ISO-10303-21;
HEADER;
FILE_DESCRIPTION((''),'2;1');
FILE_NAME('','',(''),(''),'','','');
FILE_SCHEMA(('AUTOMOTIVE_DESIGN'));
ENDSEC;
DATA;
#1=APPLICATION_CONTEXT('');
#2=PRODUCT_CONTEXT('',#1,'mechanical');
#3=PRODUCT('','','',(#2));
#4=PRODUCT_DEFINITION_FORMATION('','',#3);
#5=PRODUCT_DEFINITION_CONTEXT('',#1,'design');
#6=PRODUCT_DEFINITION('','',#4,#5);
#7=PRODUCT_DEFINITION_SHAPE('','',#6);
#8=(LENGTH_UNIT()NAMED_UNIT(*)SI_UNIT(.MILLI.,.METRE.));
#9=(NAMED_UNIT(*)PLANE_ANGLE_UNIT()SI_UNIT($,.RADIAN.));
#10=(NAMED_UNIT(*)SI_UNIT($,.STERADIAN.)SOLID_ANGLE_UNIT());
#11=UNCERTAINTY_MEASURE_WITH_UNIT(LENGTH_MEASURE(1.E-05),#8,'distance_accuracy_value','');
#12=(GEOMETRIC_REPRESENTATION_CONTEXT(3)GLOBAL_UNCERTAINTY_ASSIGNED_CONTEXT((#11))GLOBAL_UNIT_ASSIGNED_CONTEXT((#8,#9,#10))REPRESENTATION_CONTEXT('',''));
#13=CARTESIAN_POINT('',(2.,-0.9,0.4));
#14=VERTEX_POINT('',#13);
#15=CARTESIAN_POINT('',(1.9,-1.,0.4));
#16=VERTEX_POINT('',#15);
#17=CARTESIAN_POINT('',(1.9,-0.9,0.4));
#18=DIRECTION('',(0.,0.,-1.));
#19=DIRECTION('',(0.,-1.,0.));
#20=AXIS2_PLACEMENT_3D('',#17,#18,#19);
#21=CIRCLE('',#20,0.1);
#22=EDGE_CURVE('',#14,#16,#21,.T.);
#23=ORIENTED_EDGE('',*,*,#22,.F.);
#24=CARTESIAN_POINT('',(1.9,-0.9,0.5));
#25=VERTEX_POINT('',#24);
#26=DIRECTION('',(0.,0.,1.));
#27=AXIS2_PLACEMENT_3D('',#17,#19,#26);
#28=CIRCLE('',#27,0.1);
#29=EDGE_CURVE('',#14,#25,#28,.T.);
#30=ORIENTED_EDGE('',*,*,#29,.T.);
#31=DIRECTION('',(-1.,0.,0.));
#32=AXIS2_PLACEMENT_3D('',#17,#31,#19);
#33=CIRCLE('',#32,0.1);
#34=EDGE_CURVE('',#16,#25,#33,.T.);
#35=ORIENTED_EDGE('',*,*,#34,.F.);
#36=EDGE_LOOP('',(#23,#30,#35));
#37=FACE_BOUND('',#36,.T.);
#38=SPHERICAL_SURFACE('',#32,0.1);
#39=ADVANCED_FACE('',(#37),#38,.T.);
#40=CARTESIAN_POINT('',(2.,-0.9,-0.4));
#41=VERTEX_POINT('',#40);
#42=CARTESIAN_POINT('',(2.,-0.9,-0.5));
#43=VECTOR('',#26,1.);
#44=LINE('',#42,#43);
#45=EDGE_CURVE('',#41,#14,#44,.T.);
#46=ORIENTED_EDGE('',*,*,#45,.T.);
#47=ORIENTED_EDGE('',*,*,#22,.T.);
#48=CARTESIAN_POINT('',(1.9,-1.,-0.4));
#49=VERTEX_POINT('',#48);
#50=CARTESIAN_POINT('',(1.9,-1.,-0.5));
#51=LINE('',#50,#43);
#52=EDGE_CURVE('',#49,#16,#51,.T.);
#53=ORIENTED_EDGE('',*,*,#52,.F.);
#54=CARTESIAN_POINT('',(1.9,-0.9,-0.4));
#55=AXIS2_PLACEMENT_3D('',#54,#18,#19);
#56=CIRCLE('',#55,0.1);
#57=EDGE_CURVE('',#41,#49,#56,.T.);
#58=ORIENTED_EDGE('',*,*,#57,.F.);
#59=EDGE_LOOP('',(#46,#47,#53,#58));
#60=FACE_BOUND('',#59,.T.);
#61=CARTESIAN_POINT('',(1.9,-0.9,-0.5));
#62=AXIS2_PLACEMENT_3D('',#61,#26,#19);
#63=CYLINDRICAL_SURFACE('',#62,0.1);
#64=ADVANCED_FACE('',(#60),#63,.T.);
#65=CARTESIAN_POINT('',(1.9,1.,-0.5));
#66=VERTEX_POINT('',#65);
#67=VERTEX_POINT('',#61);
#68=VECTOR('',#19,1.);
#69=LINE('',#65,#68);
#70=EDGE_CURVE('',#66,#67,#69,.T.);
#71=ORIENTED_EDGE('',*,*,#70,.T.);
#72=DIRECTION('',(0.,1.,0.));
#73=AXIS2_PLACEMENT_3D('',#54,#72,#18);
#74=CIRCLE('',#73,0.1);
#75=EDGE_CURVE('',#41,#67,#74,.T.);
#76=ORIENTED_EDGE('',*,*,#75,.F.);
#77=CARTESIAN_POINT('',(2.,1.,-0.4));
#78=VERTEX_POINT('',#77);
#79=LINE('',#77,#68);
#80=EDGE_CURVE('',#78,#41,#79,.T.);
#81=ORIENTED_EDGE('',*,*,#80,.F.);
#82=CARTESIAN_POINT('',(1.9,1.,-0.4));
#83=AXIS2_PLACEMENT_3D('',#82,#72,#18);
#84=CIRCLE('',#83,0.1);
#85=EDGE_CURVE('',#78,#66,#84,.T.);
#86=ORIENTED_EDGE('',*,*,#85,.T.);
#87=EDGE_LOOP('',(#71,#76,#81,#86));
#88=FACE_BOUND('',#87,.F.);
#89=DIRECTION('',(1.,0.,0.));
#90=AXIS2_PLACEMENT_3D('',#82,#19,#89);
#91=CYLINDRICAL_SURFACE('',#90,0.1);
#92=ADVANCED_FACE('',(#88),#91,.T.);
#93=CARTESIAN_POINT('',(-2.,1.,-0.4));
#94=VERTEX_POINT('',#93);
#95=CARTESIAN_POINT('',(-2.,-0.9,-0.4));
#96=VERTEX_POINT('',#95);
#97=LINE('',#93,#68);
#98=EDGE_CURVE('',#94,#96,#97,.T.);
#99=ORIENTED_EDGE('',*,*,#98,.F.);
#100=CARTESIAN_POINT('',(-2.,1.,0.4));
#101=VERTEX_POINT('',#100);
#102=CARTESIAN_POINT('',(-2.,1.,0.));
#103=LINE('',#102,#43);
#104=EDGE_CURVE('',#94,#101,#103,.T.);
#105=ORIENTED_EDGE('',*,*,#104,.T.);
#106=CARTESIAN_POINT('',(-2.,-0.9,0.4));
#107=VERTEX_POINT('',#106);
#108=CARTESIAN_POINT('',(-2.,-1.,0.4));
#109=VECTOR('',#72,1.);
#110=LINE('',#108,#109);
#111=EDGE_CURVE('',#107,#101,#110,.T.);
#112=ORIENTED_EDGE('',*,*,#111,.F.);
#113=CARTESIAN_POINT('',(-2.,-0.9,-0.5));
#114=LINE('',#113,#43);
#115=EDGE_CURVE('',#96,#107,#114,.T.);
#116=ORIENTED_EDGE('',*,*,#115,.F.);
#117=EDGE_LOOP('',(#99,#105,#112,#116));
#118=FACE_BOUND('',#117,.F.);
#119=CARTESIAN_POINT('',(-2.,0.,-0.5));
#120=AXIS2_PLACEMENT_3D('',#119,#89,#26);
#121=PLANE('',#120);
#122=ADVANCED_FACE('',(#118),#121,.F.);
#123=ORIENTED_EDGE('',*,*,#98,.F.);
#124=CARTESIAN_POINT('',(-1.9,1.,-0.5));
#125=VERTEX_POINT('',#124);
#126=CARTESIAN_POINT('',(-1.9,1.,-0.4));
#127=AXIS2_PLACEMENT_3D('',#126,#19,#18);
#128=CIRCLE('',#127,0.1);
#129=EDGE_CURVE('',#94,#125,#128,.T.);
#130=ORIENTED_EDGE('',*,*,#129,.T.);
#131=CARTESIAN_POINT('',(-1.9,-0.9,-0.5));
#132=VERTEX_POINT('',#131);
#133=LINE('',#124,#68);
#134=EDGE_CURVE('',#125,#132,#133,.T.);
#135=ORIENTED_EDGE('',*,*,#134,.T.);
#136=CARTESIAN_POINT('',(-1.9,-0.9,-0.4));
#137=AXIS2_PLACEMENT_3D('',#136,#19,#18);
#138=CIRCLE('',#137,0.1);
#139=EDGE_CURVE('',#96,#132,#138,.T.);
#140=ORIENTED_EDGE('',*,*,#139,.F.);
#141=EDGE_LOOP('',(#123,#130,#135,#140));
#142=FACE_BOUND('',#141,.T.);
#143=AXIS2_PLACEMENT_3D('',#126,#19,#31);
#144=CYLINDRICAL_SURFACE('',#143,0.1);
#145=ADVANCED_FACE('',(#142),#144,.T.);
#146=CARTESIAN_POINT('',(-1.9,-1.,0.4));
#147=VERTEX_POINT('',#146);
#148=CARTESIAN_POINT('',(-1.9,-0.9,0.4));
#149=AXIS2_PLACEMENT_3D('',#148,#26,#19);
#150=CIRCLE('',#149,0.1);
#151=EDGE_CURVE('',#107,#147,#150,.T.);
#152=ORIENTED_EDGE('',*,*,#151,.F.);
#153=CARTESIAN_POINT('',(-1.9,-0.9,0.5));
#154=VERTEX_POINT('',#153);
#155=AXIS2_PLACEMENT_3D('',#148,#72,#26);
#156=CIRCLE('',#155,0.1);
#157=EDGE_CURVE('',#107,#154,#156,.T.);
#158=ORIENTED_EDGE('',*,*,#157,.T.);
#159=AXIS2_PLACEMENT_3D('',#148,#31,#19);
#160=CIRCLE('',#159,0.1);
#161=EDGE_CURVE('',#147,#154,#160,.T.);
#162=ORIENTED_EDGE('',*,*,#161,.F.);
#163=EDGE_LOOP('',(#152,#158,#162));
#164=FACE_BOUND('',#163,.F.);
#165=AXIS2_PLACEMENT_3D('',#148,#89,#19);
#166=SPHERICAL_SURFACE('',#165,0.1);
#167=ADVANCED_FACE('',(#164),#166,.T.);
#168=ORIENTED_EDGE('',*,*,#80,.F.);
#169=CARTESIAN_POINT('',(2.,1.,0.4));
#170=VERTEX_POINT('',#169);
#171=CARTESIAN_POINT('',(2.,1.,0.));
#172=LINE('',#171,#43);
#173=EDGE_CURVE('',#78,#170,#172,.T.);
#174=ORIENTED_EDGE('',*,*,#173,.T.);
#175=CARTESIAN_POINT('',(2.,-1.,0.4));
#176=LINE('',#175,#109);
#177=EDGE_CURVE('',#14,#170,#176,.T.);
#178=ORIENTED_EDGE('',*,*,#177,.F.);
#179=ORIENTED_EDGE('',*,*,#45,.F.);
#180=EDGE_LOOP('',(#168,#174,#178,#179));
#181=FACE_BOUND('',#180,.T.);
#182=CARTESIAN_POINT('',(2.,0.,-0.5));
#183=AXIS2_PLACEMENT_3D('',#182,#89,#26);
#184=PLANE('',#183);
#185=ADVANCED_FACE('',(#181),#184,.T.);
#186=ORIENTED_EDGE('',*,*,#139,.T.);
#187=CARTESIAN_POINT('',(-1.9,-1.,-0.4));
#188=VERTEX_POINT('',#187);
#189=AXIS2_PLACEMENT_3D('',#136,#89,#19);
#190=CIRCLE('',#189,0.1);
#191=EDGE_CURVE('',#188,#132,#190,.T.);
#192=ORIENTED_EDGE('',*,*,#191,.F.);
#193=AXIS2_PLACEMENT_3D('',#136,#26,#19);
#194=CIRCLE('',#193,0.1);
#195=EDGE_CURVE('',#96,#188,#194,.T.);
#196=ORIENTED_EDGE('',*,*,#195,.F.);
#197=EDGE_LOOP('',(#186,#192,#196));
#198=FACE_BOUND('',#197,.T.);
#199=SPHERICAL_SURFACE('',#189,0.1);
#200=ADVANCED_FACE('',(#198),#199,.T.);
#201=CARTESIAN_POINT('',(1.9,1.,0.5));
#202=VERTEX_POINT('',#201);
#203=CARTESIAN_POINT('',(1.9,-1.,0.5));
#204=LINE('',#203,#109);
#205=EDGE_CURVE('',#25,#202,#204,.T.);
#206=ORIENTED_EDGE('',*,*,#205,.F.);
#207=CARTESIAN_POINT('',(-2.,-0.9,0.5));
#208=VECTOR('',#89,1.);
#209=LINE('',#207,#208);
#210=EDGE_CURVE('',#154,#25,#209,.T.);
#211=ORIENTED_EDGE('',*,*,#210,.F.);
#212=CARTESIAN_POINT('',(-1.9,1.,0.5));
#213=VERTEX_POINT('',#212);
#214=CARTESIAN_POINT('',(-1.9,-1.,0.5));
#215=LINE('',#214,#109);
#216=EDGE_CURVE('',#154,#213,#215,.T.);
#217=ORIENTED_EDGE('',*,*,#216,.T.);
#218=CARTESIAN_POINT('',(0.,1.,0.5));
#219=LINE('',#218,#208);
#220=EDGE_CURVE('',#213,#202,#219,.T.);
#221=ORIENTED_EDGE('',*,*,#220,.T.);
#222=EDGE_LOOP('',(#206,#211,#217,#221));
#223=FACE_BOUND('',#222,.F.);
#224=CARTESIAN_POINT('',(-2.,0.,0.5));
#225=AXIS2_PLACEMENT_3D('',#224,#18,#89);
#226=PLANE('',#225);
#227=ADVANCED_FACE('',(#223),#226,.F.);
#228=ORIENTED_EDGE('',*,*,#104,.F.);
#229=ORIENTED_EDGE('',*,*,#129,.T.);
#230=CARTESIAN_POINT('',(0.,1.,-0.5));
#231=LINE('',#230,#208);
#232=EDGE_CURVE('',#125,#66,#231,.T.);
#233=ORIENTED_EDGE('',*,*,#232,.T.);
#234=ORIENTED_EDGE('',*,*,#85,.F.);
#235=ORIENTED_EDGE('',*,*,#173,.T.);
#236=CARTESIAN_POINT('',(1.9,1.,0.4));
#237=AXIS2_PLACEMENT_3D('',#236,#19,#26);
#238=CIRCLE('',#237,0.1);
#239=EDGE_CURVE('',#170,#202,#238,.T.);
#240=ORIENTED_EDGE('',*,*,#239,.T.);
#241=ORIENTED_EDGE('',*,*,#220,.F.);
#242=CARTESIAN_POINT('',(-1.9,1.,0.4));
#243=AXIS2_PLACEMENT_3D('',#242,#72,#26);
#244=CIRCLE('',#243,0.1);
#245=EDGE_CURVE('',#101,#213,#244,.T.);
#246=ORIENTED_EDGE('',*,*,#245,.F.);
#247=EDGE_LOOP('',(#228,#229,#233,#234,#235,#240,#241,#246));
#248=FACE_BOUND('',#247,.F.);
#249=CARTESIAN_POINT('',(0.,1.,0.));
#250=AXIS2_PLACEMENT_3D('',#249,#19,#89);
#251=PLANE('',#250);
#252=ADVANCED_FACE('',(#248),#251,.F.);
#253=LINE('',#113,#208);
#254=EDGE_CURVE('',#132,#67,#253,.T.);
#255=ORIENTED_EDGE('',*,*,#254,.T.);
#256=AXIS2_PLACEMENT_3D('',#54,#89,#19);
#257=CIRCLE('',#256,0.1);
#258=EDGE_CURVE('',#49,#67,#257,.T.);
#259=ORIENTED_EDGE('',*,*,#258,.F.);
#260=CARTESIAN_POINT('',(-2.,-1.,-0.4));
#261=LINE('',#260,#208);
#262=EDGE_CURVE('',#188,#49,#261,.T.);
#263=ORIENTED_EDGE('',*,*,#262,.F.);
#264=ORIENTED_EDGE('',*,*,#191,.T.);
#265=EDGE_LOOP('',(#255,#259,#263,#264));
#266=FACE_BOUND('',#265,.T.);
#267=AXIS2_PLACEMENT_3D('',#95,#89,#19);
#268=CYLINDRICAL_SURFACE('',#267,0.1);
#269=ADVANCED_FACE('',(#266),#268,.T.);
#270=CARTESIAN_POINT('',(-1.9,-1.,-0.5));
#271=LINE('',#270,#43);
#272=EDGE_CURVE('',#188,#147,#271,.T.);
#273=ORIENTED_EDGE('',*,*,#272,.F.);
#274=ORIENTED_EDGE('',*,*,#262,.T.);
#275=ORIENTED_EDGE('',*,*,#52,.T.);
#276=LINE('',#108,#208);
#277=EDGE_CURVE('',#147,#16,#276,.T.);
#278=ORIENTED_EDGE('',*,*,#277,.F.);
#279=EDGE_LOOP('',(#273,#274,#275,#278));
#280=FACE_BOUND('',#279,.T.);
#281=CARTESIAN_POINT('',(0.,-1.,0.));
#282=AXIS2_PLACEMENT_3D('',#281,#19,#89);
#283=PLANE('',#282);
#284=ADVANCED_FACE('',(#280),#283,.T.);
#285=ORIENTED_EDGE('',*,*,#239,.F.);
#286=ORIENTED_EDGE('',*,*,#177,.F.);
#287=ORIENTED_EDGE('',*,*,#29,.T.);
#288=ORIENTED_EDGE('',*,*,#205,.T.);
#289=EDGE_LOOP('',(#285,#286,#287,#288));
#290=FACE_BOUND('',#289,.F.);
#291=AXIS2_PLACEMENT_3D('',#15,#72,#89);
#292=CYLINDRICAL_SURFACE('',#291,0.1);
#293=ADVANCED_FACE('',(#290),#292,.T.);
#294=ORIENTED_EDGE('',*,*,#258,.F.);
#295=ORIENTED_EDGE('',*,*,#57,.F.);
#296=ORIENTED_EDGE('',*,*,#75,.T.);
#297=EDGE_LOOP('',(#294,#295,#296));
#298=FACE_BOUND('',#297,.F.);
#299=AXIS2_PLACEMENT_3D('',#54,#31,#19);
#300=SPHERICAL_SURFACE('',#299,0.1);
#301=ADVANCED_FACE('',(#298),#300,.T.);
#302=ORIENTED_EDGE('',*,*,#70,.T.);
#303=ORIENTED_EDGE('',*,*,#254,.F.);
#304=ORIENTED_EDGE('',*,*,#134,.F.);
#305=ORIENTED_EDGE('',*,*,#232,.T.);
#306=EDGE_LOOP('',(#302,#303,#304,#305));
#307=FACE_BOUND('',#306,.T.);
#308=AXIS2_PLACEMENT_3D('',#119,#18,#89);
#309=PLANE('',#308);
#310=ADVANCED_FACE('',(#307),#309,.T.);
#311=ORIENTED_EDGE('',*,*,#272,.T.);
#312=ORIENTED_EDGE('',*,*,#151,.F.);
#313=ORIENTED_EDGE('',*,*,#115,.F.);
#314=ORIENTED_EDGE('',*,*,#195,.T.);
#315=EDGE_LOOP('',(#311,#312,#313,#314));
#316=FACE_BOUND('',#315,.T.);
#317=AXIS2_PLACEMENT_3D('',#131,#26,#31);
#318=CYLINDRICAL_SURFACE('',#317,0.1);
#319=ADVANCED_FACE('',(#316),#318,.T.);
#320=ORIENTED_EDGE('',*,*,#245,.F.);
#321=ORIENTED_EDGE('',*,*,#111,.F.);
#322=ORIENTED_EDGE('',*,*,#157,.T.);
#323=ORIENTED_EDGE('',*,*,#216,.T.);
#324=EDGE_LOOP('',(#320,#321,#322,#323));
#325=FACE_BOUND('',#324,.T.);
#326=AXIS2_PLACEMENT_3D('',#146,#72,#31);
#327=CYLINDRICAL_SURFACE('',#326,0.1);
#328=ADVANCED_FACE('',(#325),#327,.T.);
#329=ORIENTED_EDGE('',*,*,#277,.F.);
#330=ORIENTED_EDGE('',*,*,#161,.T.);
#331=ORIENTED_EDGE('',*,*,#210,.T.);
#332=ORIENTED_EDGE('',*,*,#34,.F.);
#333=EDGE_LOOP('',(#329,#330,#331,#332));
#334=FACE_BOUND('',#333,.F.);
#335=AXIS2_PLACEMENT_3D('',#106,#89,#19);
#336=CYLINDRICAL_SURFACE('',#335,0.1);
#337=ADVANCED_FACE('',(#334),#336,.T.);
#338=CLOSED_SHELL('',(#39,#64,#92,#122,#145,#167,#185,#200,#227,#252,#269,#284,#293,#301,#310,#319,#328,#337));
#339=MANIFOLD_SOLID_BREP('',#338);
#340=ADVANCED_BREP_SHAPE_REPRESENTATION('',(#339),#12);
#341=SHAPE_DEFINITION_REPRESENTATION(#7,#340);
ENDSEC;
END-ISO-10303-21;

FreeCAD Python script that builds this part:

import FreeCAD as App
import Part
import Sketcher
from FreeCAD import Vector


def edges_at(feature, points):
    """Names of the edges that pass closest to the given points."""
    edges = feature.Shape.Edges
    near = lambda p: min(range(len(edges)), key=lambda i: edges[i].distToShape(Part.Vertex(*p))[0])
    return sorted({f"Edge{near(p) + 1}" for p in points})


def add_polygon(sketch, points):
    """Adds a closed chain of lines whose ends are joined by coincident constraints."""
    first, n = sketch.GeometryCount, len(points)
    for a, b in zip(points, points[1:] + points[:1]):
        sketch.addGeometry(Part.LineSegment(App.Vector(*a, 0), App.Vector(*b, 0)), False)
    for i in range(n):
        sketch.addConstraint(Sketcher.Constraint("Coincident", first + i, 2, first + (i + 1) % n, 1))

doc = App.newDocument("Part")
body = doc.addObject("PartDesign::Body", "Body")

sketch1 = body.newObject("Sketcher::SketchObject", "Sketch")
sketch1.AttachmentSupport = (doc.getObject("XZ_Plane"), [""])
sketch1.MapMode = "FlatFace"
add_polygon(sketch1, [(-2, 0.5), (-2, -0.5), (2, -0.5), (2, 0.5)])
sketch1.addConstraint(Sketcher.Constraint("Vertical", 0))
sketch1.addConstraint(Sketcher.Constraint("Horizontal", 1))
sketch1.addConstraint(Sketcher.Constraint("Vertical", 2))
sketch1.addConstraint(Sketcher.Constraint("Horizontal", 3))
sketch1.addConstraint(Sketcher.Constraint("Symmetric", 0, 2, 2, 2, -1, 1))
sketch1.addConstraint(Sketcher.Constraint("DistanceX", 1, 1, 1, 2, 4.0))
sketch1.addConstraint(Sketcher.Constraint("DistanceY", 0, 2, 0, 1, 1.0))
pad1 = body.newObject("PartDesign::Pad", "Pad")
pad1.Profile = sketch1
pad1.Length = 2
pad1.Midplane = True
doc.recompute()

fillet = body.newObject("PartDesign::Fillet", "Fillet")
fillet.Base = (pad1, edges_at(pad1, [
    (0, -1, -0.5),
    (0, -1, 0.5),
    (2, -1, 0),
    (-2, -1, 0),
    (-2, 0, 0.5),
    (2, 0, 0.5),
    (2, 0, -0.5),
    (-2, 0, -0.5),
]))
fillet.Radius = 0.1

doc.recompute()
